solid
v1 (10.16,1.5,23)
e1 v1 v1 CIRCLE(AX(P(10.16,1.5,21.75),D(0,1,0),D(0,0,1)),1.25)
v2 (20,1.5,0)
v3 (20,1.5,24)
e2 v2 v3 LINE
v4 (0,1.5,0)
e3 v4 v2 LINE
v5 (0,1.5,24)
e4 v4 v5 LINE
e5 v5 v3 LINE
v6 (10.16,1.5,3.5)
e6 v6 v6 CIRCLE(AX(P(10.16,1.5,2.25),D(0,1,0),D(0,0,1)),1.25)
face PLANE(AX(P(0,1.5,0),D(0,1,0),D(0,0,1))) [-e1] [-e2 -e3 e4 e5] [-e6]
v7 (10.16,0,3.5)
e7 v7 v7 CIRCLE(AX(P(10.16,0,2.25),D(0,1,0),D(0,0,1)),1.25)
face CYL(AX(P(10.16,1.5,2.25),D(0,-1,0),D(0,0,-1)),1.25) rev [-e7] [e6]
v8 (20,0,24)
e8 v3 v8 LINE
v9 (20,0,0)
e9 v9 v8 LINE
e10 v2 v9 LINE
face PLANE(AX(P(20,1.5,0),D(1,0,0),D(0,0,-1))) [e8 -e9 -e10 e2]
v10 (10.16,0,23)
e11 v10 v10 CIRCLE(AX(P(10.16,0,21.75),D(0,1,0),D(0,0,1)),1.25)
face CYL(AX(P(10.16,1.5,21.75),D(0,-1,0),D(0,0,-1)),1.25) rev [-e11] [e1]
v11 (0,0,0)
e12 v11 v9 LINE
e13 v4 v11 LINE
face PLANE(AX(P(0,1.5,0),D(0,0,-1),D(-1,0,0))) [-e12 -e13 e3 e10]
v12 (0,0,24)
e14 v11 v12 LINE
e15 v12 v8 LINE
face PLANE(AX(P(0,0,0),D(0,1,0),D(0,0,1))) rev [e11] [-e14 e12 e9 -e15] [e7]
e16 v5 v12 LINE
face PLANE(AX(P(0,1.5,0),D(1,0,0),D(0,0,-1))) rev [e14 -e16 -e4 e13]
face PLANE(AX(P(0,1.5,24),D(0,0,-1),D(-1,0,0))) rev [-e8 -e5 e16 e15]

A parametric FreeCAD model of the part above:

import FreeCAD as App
import Part
import Sketcher
from FreeCAD import Vector
Q = App.Units.Quantity


def add_polygon(sketch, points):
    """Adds a closed chain of lines whose ends are joined by coincident constraints."""
    first, n = sketch.GeometryCount, len(points)
    for a, b in zip(points, points[1:] + points[:1]):
        sketch.addGeometry(Part.LineSegment(App.Vector(*a, 0), App.Vector(*b, 0)), False)
    for i in range(n):
        sketch.addConstraint(Sketcher.Constraint("Coincident", first + i, 2, first + (i + 1) % n, 1))

doc = App.newDocument("Part")
params = doc.addObject("Spreadsheet::Sheet", "Params")
for row, (alias, value) in enumerate([
    ("sketch1_diameter", "2.5 mm"),
    ("sketch1_width", "20 mm"),
    ("sketch1_height", "24 mm"),
    ("pad1_length", "1.5 mm"),
], start=1):
    params.set(f"A{row}", alias)
    params.set(f"B{row}", "=" + value)
    params.setAlias(f"B{row}", alias)

body = doc.addObject("PartDesign::Body", "Body")

# Sketch on XZ plane
sketch1 = body.newObject("Sketcher::SketchObject", "Sketch")
sketch1.AttachmentSupport = (doc.getObject("XZ_Plane"), [""])
sketch1.MapMode = "FlatFace"
add_polygon(sketch1, [(0, 0), (0, 24), (20, 24), (20, 0)])  # lines 0-3
sketch1.addGeometry(Part.Circle(Vector(10.2, 21.8, 0), Vector(0, 0, 1), 1.2), False)  # 4
sketch1.addGeometry(Part.Circle(Vector(10.2, 2.2, 0), Vector(0, 0, 1), 1.2), False)  # 5
sketch1.addConstraint([
    Sketcher.Constraint("Vertical", 0),
    Sketcher.Constraint("Horizontal", 1),
    Sketcher.Constraint("Vertical", 2),
    Sketcher.Constraint("Horizontal", 3),
    Sketcher.Constraint("Coincident", 3, 2, -1, 1),
    Sketcher.Constraint("Equal", 4, 5),
    Sketcher.Constraint("Vertical", 4, 3, 5, 3),
    Sketcher.Constraint("Diameter", 4, Q("2.5 mm")),
    Sketcher.Constraint("DistanceX", 1, 1, 1, 2, Q("20 mm")),
    Sketcher.Constraint("DistanceY", 0, 1, 0, 2, Q("24 mm")),
    Sketcher.Constraint("DistanceY", 5, 3, 4, 3, Q("19.5 mm")),
    Sketcher.Constraint("DistanceX", -1, 1, 4, 3, Q("10.16 mm")),
    Sketcher.Constraint("DistanceY", -1, 1, 4, 3, Q("21.75 mm")),
])
sketch1.setExpression("Constraints[11]", "Params.sketch1_diameter")
sketch1.setExpression("Constraints[12]", "Params.sketch1_width")
sketch1.setExpression("Constraints[13]", "Params.sketch1_height")
pad1 = body.newObject("PartDesign::Pad", "Pad")
pad1.Profile = sketch1
pad1.setExpression("Length", "Params.pad1_length")
pad1.Reversed = True

doc.recompute()
